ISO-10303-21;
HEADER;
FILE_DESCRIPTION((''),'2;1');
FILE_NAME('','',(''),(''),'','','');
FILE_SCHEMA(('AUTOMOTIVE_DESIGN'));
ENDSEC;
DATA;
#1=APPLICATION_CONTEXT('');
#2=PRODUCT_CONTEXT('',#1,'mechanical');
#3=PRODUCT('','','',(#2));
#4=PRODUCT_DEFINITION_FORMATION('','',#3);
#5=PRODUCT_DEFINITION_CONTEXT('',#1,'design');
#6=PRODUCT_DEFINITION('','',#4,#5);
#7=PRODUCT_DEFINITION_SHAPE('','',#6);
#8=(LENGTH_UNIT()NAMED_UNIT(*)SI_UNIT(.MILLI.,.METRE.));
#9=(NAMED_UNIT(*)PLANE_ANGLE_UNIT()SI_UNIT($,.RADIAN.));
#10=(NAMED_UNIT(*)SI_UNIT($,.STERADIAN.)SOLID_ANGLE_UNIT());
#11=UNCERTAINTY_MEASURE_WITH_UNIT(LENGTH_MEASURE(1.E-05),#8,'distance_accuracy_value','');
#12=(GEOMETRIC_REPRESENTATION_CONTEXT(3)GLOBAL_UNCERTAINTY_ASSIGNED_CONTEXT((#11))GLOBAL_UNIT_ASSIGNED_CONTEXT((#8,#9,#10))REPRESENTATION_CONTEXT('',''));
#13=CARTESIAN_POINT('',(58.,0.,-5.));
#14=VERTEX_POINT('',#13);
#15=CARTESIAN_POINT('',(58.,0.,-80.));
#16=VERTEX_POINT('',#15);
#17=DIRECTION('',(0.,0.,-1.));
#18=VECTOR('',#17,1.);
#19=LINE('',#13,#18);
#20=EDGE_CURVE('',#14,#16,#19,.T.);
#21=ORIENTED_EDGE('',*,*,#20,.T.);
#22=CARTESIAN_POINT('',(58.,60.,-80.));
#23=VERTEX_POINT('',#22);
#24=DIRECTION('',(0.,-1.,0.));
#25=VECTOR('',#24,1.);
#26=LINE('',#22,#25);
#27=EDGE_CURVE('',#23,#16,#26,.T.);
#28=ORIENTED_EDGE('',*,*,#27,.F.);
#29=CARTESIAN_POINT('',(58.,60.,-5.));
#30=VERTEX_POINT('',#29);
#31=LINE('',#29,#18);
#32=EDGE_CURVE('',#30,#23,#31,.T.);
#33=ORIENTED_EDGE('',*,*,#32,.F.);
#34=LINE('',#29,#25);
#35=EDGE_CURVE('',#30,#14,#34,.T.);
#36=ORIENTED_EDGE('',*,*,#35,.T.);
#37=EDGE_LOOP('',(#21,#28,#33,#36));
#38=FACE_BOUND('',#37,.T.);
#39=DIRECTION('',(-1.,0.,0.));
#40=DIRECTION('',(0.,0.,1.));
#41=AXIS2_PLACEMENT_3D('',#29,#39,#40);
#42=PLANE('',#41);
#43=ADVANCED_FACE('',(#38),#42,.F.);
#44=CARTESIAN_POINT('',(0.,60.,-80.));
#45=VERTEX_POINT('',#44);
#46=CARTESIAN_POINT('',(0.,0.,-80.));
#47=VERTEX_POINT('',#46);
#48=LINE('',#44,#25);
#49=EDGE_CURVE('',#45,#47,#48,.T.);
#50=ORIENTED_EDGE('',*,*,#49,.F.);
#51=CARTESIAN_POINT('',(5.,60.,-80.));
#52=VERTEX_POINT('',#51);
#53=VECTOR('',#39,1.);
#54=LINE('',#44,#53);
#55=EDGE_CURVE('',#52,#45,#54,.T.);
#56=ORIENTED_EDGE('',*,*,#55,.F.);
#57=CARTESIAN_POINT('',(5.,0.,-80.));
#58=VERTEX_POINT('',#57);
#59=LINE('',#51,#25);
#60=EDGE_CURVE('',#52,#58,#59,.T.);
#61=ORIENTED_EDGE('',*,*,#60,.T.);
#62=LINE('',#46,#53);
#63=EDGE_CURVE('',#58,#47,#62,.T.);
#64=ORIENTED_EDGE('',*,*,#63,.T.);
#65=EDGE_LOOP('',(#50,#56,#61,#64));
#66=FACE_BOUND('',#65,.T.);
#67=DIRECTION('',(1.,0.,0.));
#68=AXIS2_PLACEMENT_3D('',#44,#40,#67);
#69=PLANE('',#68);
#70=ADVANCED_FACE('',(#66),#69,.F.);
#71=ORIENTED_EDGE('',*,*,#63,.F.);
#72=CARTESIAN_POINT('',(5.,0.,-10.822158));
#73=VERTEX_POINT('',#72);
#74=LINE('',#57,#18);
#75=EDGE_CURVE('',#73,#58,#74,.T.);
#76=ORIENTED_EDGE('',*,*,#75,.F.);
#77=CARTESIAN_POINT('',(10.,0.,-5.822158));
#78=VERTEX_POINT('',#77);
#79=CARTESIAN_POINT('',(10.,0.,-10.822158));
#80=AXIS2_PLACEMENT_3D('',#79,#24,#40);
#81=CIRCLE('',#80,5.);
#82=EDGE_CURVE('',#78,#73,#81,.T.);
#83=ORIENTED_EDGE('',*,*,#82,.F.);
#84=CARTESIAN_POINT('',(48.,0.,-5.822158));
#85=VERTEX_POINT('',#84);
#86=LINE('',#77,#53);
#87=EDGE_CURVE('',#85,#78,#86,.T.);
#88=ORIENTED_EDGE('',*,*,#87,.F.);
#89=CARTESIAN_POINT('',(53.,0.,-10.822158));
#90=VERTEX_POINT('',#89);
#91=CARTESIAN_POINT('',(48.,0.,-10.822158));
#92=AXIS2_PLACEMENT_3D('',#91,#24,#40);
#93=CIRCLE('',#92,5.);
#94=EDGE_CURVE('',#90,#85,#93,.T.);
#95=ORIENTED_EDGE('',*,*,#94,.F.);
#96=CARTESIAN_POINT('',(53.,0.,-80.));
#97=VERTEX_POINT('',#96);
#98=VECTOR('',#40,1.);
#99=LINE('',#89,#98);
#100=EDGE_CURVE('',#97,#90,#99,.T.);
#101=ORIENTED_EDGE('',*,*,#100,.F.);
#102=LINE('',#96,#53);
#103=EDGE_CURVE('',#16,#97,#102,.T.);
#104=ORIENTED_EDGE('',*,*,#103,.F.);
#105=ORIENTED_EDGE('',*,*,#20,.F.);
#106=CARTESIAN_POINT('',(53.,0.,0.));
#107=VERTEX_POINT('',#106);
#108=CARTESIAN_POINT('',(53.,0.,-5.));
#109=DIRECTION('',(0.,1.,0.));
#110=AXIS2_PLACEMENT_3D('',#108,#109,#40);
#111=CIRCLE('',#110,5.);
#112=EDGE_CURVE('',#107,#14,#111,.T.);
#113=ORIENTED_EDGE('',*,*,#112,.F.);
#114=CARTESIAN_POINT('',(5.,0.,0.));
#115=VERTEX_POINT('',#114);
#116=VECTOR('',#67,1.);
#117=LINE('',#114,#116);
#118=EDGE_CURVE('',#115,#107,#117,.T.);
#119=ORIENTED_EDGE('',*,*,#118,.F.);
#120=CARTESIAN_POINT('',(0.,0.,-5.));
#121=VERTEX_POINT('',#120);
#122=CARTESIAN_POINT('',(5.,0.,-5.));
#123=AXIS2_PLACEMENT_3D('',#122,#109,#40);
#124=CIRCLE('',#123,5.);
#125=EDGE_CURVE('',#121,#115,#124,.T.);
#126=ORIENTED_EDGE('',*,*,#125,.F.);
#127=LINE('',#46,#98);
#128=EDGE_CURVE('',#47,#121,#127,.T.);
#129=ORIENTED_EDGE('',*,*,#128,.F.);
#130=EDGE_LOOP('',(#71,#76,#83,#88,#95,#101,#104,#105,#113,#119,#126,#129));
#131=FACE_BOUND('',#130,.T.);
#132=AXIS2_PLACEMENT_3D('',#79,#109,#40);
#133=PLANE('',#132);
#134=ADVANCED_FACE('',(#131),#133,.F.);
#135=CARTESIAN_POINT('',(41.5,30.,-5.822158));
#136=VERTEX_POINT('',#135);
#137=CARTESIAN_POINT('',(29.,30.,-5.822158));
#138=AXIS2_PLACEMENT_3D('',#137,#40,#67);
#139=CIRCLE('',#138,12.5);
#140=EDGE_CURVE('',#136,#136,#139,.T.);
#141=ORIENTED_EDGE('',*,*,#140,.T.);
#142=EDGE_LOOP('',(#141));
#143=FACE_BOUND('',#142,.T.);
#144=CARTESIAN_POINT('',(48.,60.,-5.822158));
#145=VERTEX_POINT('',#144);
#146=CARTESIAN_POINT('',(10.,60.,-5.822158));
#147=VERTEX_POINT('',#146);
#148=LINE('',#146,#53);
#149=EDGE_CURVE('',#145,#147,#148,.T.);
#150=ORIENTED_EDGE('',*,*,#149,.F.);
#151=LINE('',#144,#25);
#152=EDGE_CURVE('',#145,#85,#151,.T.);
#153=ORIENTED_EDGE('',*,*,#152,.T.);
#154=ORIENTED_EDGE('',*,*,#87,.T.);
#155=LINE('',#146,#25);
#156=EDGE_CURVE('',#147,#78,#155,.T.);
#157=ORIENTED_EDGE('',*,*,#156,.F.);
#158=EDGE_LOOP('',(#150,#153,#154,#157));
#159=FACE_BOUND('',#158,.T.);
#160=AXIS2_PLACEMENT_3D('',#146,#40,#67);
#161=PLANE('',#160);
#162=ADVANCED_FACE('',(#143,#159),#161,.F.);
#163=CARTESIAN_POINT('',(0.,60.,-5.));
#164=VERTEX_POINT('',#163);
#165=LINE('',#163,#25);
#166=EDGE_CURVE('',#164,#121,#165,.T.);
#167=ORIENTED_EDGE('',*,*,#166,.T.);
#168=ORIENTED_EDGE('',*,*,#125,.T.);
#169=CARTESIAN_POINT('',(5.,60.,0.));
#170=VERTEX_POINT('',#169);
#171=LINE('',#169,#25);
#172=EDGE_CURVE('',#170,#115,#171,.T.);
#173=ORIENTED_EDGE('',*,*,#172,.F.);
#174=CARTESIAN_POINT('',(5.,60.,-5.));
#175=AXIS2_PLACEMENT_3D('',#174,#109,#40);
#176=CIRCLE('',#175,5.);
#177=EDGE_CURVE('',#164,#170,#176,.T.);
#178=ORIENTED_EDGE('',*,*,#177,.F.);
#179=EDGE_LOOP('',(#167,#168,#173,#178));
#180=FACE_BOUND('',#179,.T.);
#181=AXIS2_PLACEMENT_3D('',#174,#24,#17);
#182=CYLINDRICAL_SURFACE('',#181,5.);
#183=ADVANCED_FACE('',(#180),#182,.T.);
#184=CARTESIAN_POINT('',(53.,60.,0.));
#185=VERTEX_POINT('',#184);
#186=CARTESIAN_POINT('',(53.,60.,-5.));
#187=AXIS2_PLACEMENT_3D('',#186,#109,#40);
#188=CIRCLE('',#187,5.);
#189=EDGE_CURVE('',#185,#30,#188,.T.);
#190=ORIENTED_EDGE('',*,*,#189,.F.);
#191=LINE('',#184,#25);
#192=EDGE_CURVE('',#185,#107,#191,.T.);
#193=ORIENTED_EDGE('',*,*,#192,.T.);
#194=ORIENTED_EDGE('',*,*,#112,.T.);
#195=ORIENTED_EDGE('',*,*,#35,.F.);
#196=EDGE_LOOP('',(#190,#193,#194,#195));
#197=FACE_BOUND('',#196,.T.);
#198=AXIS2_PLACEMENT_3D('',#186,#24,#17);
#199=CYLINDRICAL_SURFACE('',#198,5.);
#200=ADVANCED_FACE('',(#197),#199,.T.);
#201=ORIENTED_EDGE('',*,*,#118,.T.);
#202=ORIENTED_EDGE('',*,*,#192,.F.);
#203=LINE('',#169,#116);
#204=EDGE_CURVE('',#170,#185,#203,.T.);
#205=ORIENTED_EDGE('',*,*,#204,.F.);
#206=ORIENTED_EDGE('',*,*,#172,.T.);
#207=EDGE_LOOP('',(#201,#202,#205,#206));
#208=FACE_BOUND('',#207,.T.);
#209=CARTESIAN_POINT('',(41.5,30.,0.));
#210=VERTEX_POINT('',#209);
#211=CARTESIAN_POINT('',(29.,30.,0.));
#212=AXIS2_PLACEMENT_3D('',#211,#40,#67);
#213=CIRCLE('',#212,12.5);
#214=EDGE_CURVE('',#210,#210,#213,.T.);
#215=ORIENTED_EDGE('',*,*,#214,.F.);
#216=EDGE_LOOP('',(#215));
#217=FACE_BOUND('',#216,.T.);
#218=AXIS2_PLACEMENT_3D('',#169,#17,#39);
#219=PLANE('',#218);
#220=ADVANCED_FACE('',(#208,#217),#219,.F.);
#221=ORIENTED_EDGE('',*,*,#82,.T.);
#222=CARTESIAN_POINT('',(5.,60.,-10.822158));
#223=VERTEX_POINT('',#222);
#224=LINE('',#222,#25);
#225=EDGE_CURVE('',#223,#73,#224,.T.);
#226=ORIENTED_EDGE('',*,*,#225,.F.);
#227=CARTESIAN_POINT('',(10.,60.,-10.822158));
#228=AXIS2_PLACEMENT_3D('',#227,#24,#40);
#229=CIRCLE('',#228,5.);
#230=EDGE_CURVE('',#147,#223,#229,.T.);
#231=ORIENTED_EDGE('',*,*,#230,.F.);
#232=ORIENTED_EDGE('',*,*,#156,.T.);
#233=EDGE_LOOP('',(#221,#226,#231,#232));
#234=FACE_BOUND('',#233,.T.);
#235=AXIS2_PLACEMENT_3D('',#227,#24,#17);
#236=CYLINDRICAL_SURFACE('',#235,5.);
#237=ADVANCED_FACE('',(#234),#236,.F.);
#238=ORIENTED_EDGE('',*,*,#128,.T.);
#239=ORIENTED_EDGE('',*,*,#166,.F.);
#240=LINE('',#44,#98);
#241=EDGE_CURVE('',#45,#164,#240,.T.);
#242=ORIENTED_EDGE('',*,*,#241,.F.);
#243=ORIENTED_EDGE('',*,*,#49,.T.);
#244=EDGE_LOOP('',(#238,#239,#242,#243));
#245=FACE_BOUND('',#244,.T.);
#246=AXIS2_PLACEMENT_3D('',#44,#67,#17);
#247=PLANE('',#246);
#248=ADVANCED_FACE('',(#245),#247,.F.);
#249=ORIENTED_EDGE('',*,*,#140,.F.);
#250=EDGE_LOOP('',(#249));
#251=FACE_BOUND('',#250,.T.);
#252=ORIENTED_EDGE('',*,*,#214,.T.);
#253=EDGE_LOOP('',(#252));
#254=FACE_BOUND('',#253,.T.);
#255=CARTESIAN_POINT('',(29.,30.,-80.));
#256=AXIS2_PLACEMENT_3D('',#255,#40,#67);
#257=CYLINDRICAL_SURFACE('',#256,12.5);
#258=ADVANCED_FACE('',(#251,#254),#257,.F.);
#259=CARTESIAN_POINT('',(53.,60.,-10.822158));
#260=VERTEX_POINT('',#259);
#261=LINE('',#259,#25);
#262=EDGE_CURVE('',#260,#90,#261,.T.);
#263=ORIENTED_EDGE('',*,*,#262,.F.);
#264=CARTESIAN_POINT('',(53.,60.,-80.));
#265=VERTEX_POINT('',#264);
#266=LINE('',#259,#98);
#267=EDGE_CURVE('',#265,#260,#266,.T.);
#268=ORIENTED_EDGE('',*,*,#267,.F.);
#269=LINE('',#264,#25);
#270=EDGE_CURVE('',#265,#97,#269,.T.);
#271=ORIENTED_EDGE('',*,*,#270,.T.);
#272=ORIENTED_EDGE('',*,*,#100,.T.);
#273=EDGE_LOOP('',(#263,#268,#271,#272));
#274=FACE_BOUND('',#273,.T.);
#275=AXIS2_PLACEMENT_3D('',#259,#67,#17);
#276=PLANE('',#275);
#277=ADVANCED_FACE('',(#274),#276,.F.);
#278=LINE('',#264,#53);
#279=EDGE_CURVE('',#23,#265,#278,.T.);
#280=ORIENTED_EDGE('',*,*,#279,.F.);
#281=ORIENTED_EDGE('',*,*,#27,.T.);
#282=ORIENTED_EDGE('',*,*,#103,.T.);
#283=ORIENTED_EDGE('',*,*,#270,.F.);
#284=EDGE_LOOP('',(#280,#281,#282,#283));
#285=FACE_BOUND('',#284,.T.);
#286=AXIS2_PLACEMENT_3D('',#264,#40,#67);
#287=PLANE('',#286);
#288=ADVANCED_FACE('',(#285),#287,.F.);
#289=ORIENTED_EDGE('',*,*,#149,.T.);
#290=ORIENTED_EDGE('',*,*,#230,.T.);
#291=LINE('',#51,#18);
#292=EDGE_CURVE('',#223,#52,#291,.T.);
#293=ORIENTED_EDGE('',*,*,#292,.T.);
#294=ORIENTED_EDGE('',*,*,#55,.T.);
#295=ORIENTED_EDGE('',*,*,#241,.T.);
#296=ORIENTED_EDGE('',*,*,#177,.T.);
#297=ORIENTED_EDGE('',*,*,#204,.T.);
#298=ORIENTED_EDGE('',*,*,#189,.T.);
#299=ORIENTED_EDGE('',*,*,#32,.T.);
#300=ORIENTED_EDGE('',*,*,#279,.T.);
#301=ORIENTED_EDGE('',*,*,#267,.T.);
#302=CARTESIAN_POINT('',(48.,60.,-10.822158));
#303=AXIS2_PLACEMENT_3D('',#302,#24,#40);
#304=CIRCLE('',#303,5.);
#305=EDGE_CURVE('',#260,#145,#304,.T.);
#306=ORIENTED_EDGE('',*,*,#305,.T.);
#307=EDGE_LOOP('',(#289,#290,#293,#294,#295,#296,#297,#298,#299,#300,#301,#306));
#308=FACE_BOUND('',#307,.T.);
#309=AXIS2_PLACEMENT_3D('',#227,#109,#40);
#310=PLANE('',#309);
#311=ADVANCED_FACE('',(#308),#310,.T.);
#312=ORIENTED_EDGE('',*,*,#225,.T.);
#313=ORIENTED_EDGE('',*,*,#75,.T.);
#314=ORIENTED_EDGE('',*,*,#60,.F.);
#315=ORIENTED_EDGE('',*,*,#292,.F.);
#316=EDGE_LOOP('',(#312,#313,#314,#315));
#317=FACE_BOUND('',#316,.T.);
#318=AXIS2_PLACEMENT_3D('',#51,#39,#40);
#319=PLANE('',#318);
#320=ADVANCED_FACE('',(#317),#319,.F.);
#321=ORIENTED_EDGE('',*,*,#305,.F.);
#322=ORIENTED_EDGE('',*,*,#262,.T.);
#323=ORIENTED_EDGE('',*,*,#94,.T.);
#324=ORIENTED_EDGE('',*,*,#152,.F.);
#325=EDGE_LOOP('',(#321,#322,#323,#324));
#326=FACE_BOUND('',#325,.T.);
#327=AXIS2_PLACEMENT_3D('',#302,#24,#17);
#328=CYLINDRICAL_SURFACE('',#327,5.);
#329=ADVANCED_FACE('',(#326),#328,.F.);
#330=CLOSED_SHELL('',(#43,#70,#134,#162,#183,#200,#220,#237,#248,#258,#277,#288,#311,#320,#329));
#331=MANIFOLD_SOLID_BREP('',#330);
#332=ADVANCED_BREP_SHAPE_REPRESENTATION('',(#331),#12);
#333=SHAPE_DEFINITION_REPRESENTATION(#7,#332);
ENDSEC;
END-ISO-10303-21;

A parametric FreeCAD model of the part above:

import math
import FreeCAD as App
import Part
import Sketcher

doc = App.newDocument("Part")
body = doc.addObject("PartDesign::Body", "Body")

sketch1 = body.newObject("Sketcher::SketchObject", "Sketch")
sketch1.AttachmentSupport = (doc.getObject("XZ_Plane"), [""])
sketch1.MapMode = "FlatFace"
sketch1.addGeometry([
    Part.LineSegment(App.Vector(0, -80, 0), App.Vector(0, -5, 0)),
    Part.ArcOfCircle(Part.Circle(App.Vector(5, -5, 0), App.Vector(0, 0, 1), 5), math.radians(90), math.radians(180)),
    Part.LineSegment(App.Vector(5, 0, 0), App.Vector(53, 0, 0)),
    Part.ArcOfCircle(Part.Circle(App.Vector(53, -5, 0), App.Vector(0, 0, 1), 5), math.radians(0), math.radians(90)),
    Part.LineSegment(App.Vector(58, -5, 0), App.Vector(58, -80, 0)),
    Part.LineSegment(App.Vector(58, -80, 0), App.Vector(53, -80, 0)),
    Part.LineSegment(App.Vector(53, -80, 0), App.Vector(53, -11, 0)),
    Part.ArcOfCircle(Part.Circle(App.Vector(48, -11, 0), App.Vector(0, 0, 1), 5), math.radians(0), math.radians(90)),
    Part.LineSegment(App.Vector(48, -6, 0), App.Vector(10, -6, 0)),
    Part.ArcOfCircle(Part.Circle(App.Vector(10, -11, 0), App.Vector(0, 0, 1), 5), math.radians(90), math.radians(180)),
    Part.LineSegment(App.Vector(5, -11, 0), App.Vector(5, -80, 0)),
    Part.LineSegment(App.Vector(5, -80, 0), App.Vector(0, -80, 0)),
], False)
sketch1.addConstraint([
    Sketcher.Constraint("Tangent", 0, 2, 1, 2),
    Sketcher.Constraint("Tangent", 1, 1, 2, 1),
    Sketcher.Constraint("Tangent", 2, 2, 3, 2),
    Sketcher.Constraint("Tangent", 3, 1, 4, 1),
    Sketcher.Constraint("Coincident", 4, 2, 5, 1),
    Sketcher.Constraint("Coincident", 5, 2, 6, 1),
    Sketcher.Constraint("Tangent", 6, 2, 7, 1),
    Sketcher.Constraint("Tangent", 7, 2, 8, 1),
    Sketcher.Constraint("Tangent", 8, 2, 9, 1),
    Sketcher.Constraint("Tangent", 9, 2, 10, 1),
    Sketcher.Constraint("Coincident", 10, 2, 11, 1),
    Sketcher.Constraint("Coincident", 11, 2, 0, 1),
    Sketcher.Constraint("Vertical", 0),
    Sketcher.Constraint("Horizontal", 2),
    Sketcher.Constraint("Vertical", 4),
    Sketcher.Constraint("Horizontal", 5),
    Sketcher.Constraint("Vertical", 6),
    Sketcher.Constraint("Horizontal", 8),
    Sketcher.Constraint("Vertical", 10),
    Sketcher.Constraint("Horizontal", 11),
    Sketcher.Constraint("Equal", 1, 3),
    Sketcher.Constraint("Equal", 3, 7),
    Sketcher.Constraint("Equal", 7, 9),
    Sketcher.Constraint("PointOnObject", 0, 2, -2),
    Sketcher.Constraint("PointOnObject", 1, 1, -1),
    Sketcher.Constraint("Horizontal", 5, 2, 10, 2),
    Sketcher.Constraint("Vertical", 2, 2, 5, 2),
    Sketcher.Constraint("Vertical", 1, 1, 9, 2),
    Sketcher.Constraint("Radius", 1, 5.0),
    Sketcher.Constraint("DistanceX", 2, 1, 2, 2, 48.0),
    Sketcher.Constraint("DistanceY", 0, 1, 0, 2, 75.0),
    Sketcher.Constraint("DistanceY", 6, 1, 6, 2, 69.177842),
])
pad1 = body.newObject("PartDesign::Pad", "Pad")
pad1.Profile = sketch1
pad1.Length = 60
pad1.Reversed = True

sketch2 = body.newObject("Sketcher::SketchObject", "Sketch001")
sketch2.AttachmentSupport = (doc.getObject("XY_Plane"), [""])
sketch2.MapMode = "FlatFace"
sketch2.addGeometry(Part.Circle(App.Vector(29, 30, 0), App.Vector(0, 0, 1), 12), False)
sketch2.addConstraint([
    Sketcher.Constraint("Diameter", 0, 25.0),
    Sketcher.Constraint("DistanceX", -1, 1, 0, 3, 29.0),
    Sketcher.Constraint("DistanceY", -1, 1, 0, 3, 30.0),
])
pocket1 = body.newObject("PartDesign::Pocket", "Pocket")
pocket1.Profile = sketch2
pocket1.Type = "ThroughAll"

doc.recompute()
